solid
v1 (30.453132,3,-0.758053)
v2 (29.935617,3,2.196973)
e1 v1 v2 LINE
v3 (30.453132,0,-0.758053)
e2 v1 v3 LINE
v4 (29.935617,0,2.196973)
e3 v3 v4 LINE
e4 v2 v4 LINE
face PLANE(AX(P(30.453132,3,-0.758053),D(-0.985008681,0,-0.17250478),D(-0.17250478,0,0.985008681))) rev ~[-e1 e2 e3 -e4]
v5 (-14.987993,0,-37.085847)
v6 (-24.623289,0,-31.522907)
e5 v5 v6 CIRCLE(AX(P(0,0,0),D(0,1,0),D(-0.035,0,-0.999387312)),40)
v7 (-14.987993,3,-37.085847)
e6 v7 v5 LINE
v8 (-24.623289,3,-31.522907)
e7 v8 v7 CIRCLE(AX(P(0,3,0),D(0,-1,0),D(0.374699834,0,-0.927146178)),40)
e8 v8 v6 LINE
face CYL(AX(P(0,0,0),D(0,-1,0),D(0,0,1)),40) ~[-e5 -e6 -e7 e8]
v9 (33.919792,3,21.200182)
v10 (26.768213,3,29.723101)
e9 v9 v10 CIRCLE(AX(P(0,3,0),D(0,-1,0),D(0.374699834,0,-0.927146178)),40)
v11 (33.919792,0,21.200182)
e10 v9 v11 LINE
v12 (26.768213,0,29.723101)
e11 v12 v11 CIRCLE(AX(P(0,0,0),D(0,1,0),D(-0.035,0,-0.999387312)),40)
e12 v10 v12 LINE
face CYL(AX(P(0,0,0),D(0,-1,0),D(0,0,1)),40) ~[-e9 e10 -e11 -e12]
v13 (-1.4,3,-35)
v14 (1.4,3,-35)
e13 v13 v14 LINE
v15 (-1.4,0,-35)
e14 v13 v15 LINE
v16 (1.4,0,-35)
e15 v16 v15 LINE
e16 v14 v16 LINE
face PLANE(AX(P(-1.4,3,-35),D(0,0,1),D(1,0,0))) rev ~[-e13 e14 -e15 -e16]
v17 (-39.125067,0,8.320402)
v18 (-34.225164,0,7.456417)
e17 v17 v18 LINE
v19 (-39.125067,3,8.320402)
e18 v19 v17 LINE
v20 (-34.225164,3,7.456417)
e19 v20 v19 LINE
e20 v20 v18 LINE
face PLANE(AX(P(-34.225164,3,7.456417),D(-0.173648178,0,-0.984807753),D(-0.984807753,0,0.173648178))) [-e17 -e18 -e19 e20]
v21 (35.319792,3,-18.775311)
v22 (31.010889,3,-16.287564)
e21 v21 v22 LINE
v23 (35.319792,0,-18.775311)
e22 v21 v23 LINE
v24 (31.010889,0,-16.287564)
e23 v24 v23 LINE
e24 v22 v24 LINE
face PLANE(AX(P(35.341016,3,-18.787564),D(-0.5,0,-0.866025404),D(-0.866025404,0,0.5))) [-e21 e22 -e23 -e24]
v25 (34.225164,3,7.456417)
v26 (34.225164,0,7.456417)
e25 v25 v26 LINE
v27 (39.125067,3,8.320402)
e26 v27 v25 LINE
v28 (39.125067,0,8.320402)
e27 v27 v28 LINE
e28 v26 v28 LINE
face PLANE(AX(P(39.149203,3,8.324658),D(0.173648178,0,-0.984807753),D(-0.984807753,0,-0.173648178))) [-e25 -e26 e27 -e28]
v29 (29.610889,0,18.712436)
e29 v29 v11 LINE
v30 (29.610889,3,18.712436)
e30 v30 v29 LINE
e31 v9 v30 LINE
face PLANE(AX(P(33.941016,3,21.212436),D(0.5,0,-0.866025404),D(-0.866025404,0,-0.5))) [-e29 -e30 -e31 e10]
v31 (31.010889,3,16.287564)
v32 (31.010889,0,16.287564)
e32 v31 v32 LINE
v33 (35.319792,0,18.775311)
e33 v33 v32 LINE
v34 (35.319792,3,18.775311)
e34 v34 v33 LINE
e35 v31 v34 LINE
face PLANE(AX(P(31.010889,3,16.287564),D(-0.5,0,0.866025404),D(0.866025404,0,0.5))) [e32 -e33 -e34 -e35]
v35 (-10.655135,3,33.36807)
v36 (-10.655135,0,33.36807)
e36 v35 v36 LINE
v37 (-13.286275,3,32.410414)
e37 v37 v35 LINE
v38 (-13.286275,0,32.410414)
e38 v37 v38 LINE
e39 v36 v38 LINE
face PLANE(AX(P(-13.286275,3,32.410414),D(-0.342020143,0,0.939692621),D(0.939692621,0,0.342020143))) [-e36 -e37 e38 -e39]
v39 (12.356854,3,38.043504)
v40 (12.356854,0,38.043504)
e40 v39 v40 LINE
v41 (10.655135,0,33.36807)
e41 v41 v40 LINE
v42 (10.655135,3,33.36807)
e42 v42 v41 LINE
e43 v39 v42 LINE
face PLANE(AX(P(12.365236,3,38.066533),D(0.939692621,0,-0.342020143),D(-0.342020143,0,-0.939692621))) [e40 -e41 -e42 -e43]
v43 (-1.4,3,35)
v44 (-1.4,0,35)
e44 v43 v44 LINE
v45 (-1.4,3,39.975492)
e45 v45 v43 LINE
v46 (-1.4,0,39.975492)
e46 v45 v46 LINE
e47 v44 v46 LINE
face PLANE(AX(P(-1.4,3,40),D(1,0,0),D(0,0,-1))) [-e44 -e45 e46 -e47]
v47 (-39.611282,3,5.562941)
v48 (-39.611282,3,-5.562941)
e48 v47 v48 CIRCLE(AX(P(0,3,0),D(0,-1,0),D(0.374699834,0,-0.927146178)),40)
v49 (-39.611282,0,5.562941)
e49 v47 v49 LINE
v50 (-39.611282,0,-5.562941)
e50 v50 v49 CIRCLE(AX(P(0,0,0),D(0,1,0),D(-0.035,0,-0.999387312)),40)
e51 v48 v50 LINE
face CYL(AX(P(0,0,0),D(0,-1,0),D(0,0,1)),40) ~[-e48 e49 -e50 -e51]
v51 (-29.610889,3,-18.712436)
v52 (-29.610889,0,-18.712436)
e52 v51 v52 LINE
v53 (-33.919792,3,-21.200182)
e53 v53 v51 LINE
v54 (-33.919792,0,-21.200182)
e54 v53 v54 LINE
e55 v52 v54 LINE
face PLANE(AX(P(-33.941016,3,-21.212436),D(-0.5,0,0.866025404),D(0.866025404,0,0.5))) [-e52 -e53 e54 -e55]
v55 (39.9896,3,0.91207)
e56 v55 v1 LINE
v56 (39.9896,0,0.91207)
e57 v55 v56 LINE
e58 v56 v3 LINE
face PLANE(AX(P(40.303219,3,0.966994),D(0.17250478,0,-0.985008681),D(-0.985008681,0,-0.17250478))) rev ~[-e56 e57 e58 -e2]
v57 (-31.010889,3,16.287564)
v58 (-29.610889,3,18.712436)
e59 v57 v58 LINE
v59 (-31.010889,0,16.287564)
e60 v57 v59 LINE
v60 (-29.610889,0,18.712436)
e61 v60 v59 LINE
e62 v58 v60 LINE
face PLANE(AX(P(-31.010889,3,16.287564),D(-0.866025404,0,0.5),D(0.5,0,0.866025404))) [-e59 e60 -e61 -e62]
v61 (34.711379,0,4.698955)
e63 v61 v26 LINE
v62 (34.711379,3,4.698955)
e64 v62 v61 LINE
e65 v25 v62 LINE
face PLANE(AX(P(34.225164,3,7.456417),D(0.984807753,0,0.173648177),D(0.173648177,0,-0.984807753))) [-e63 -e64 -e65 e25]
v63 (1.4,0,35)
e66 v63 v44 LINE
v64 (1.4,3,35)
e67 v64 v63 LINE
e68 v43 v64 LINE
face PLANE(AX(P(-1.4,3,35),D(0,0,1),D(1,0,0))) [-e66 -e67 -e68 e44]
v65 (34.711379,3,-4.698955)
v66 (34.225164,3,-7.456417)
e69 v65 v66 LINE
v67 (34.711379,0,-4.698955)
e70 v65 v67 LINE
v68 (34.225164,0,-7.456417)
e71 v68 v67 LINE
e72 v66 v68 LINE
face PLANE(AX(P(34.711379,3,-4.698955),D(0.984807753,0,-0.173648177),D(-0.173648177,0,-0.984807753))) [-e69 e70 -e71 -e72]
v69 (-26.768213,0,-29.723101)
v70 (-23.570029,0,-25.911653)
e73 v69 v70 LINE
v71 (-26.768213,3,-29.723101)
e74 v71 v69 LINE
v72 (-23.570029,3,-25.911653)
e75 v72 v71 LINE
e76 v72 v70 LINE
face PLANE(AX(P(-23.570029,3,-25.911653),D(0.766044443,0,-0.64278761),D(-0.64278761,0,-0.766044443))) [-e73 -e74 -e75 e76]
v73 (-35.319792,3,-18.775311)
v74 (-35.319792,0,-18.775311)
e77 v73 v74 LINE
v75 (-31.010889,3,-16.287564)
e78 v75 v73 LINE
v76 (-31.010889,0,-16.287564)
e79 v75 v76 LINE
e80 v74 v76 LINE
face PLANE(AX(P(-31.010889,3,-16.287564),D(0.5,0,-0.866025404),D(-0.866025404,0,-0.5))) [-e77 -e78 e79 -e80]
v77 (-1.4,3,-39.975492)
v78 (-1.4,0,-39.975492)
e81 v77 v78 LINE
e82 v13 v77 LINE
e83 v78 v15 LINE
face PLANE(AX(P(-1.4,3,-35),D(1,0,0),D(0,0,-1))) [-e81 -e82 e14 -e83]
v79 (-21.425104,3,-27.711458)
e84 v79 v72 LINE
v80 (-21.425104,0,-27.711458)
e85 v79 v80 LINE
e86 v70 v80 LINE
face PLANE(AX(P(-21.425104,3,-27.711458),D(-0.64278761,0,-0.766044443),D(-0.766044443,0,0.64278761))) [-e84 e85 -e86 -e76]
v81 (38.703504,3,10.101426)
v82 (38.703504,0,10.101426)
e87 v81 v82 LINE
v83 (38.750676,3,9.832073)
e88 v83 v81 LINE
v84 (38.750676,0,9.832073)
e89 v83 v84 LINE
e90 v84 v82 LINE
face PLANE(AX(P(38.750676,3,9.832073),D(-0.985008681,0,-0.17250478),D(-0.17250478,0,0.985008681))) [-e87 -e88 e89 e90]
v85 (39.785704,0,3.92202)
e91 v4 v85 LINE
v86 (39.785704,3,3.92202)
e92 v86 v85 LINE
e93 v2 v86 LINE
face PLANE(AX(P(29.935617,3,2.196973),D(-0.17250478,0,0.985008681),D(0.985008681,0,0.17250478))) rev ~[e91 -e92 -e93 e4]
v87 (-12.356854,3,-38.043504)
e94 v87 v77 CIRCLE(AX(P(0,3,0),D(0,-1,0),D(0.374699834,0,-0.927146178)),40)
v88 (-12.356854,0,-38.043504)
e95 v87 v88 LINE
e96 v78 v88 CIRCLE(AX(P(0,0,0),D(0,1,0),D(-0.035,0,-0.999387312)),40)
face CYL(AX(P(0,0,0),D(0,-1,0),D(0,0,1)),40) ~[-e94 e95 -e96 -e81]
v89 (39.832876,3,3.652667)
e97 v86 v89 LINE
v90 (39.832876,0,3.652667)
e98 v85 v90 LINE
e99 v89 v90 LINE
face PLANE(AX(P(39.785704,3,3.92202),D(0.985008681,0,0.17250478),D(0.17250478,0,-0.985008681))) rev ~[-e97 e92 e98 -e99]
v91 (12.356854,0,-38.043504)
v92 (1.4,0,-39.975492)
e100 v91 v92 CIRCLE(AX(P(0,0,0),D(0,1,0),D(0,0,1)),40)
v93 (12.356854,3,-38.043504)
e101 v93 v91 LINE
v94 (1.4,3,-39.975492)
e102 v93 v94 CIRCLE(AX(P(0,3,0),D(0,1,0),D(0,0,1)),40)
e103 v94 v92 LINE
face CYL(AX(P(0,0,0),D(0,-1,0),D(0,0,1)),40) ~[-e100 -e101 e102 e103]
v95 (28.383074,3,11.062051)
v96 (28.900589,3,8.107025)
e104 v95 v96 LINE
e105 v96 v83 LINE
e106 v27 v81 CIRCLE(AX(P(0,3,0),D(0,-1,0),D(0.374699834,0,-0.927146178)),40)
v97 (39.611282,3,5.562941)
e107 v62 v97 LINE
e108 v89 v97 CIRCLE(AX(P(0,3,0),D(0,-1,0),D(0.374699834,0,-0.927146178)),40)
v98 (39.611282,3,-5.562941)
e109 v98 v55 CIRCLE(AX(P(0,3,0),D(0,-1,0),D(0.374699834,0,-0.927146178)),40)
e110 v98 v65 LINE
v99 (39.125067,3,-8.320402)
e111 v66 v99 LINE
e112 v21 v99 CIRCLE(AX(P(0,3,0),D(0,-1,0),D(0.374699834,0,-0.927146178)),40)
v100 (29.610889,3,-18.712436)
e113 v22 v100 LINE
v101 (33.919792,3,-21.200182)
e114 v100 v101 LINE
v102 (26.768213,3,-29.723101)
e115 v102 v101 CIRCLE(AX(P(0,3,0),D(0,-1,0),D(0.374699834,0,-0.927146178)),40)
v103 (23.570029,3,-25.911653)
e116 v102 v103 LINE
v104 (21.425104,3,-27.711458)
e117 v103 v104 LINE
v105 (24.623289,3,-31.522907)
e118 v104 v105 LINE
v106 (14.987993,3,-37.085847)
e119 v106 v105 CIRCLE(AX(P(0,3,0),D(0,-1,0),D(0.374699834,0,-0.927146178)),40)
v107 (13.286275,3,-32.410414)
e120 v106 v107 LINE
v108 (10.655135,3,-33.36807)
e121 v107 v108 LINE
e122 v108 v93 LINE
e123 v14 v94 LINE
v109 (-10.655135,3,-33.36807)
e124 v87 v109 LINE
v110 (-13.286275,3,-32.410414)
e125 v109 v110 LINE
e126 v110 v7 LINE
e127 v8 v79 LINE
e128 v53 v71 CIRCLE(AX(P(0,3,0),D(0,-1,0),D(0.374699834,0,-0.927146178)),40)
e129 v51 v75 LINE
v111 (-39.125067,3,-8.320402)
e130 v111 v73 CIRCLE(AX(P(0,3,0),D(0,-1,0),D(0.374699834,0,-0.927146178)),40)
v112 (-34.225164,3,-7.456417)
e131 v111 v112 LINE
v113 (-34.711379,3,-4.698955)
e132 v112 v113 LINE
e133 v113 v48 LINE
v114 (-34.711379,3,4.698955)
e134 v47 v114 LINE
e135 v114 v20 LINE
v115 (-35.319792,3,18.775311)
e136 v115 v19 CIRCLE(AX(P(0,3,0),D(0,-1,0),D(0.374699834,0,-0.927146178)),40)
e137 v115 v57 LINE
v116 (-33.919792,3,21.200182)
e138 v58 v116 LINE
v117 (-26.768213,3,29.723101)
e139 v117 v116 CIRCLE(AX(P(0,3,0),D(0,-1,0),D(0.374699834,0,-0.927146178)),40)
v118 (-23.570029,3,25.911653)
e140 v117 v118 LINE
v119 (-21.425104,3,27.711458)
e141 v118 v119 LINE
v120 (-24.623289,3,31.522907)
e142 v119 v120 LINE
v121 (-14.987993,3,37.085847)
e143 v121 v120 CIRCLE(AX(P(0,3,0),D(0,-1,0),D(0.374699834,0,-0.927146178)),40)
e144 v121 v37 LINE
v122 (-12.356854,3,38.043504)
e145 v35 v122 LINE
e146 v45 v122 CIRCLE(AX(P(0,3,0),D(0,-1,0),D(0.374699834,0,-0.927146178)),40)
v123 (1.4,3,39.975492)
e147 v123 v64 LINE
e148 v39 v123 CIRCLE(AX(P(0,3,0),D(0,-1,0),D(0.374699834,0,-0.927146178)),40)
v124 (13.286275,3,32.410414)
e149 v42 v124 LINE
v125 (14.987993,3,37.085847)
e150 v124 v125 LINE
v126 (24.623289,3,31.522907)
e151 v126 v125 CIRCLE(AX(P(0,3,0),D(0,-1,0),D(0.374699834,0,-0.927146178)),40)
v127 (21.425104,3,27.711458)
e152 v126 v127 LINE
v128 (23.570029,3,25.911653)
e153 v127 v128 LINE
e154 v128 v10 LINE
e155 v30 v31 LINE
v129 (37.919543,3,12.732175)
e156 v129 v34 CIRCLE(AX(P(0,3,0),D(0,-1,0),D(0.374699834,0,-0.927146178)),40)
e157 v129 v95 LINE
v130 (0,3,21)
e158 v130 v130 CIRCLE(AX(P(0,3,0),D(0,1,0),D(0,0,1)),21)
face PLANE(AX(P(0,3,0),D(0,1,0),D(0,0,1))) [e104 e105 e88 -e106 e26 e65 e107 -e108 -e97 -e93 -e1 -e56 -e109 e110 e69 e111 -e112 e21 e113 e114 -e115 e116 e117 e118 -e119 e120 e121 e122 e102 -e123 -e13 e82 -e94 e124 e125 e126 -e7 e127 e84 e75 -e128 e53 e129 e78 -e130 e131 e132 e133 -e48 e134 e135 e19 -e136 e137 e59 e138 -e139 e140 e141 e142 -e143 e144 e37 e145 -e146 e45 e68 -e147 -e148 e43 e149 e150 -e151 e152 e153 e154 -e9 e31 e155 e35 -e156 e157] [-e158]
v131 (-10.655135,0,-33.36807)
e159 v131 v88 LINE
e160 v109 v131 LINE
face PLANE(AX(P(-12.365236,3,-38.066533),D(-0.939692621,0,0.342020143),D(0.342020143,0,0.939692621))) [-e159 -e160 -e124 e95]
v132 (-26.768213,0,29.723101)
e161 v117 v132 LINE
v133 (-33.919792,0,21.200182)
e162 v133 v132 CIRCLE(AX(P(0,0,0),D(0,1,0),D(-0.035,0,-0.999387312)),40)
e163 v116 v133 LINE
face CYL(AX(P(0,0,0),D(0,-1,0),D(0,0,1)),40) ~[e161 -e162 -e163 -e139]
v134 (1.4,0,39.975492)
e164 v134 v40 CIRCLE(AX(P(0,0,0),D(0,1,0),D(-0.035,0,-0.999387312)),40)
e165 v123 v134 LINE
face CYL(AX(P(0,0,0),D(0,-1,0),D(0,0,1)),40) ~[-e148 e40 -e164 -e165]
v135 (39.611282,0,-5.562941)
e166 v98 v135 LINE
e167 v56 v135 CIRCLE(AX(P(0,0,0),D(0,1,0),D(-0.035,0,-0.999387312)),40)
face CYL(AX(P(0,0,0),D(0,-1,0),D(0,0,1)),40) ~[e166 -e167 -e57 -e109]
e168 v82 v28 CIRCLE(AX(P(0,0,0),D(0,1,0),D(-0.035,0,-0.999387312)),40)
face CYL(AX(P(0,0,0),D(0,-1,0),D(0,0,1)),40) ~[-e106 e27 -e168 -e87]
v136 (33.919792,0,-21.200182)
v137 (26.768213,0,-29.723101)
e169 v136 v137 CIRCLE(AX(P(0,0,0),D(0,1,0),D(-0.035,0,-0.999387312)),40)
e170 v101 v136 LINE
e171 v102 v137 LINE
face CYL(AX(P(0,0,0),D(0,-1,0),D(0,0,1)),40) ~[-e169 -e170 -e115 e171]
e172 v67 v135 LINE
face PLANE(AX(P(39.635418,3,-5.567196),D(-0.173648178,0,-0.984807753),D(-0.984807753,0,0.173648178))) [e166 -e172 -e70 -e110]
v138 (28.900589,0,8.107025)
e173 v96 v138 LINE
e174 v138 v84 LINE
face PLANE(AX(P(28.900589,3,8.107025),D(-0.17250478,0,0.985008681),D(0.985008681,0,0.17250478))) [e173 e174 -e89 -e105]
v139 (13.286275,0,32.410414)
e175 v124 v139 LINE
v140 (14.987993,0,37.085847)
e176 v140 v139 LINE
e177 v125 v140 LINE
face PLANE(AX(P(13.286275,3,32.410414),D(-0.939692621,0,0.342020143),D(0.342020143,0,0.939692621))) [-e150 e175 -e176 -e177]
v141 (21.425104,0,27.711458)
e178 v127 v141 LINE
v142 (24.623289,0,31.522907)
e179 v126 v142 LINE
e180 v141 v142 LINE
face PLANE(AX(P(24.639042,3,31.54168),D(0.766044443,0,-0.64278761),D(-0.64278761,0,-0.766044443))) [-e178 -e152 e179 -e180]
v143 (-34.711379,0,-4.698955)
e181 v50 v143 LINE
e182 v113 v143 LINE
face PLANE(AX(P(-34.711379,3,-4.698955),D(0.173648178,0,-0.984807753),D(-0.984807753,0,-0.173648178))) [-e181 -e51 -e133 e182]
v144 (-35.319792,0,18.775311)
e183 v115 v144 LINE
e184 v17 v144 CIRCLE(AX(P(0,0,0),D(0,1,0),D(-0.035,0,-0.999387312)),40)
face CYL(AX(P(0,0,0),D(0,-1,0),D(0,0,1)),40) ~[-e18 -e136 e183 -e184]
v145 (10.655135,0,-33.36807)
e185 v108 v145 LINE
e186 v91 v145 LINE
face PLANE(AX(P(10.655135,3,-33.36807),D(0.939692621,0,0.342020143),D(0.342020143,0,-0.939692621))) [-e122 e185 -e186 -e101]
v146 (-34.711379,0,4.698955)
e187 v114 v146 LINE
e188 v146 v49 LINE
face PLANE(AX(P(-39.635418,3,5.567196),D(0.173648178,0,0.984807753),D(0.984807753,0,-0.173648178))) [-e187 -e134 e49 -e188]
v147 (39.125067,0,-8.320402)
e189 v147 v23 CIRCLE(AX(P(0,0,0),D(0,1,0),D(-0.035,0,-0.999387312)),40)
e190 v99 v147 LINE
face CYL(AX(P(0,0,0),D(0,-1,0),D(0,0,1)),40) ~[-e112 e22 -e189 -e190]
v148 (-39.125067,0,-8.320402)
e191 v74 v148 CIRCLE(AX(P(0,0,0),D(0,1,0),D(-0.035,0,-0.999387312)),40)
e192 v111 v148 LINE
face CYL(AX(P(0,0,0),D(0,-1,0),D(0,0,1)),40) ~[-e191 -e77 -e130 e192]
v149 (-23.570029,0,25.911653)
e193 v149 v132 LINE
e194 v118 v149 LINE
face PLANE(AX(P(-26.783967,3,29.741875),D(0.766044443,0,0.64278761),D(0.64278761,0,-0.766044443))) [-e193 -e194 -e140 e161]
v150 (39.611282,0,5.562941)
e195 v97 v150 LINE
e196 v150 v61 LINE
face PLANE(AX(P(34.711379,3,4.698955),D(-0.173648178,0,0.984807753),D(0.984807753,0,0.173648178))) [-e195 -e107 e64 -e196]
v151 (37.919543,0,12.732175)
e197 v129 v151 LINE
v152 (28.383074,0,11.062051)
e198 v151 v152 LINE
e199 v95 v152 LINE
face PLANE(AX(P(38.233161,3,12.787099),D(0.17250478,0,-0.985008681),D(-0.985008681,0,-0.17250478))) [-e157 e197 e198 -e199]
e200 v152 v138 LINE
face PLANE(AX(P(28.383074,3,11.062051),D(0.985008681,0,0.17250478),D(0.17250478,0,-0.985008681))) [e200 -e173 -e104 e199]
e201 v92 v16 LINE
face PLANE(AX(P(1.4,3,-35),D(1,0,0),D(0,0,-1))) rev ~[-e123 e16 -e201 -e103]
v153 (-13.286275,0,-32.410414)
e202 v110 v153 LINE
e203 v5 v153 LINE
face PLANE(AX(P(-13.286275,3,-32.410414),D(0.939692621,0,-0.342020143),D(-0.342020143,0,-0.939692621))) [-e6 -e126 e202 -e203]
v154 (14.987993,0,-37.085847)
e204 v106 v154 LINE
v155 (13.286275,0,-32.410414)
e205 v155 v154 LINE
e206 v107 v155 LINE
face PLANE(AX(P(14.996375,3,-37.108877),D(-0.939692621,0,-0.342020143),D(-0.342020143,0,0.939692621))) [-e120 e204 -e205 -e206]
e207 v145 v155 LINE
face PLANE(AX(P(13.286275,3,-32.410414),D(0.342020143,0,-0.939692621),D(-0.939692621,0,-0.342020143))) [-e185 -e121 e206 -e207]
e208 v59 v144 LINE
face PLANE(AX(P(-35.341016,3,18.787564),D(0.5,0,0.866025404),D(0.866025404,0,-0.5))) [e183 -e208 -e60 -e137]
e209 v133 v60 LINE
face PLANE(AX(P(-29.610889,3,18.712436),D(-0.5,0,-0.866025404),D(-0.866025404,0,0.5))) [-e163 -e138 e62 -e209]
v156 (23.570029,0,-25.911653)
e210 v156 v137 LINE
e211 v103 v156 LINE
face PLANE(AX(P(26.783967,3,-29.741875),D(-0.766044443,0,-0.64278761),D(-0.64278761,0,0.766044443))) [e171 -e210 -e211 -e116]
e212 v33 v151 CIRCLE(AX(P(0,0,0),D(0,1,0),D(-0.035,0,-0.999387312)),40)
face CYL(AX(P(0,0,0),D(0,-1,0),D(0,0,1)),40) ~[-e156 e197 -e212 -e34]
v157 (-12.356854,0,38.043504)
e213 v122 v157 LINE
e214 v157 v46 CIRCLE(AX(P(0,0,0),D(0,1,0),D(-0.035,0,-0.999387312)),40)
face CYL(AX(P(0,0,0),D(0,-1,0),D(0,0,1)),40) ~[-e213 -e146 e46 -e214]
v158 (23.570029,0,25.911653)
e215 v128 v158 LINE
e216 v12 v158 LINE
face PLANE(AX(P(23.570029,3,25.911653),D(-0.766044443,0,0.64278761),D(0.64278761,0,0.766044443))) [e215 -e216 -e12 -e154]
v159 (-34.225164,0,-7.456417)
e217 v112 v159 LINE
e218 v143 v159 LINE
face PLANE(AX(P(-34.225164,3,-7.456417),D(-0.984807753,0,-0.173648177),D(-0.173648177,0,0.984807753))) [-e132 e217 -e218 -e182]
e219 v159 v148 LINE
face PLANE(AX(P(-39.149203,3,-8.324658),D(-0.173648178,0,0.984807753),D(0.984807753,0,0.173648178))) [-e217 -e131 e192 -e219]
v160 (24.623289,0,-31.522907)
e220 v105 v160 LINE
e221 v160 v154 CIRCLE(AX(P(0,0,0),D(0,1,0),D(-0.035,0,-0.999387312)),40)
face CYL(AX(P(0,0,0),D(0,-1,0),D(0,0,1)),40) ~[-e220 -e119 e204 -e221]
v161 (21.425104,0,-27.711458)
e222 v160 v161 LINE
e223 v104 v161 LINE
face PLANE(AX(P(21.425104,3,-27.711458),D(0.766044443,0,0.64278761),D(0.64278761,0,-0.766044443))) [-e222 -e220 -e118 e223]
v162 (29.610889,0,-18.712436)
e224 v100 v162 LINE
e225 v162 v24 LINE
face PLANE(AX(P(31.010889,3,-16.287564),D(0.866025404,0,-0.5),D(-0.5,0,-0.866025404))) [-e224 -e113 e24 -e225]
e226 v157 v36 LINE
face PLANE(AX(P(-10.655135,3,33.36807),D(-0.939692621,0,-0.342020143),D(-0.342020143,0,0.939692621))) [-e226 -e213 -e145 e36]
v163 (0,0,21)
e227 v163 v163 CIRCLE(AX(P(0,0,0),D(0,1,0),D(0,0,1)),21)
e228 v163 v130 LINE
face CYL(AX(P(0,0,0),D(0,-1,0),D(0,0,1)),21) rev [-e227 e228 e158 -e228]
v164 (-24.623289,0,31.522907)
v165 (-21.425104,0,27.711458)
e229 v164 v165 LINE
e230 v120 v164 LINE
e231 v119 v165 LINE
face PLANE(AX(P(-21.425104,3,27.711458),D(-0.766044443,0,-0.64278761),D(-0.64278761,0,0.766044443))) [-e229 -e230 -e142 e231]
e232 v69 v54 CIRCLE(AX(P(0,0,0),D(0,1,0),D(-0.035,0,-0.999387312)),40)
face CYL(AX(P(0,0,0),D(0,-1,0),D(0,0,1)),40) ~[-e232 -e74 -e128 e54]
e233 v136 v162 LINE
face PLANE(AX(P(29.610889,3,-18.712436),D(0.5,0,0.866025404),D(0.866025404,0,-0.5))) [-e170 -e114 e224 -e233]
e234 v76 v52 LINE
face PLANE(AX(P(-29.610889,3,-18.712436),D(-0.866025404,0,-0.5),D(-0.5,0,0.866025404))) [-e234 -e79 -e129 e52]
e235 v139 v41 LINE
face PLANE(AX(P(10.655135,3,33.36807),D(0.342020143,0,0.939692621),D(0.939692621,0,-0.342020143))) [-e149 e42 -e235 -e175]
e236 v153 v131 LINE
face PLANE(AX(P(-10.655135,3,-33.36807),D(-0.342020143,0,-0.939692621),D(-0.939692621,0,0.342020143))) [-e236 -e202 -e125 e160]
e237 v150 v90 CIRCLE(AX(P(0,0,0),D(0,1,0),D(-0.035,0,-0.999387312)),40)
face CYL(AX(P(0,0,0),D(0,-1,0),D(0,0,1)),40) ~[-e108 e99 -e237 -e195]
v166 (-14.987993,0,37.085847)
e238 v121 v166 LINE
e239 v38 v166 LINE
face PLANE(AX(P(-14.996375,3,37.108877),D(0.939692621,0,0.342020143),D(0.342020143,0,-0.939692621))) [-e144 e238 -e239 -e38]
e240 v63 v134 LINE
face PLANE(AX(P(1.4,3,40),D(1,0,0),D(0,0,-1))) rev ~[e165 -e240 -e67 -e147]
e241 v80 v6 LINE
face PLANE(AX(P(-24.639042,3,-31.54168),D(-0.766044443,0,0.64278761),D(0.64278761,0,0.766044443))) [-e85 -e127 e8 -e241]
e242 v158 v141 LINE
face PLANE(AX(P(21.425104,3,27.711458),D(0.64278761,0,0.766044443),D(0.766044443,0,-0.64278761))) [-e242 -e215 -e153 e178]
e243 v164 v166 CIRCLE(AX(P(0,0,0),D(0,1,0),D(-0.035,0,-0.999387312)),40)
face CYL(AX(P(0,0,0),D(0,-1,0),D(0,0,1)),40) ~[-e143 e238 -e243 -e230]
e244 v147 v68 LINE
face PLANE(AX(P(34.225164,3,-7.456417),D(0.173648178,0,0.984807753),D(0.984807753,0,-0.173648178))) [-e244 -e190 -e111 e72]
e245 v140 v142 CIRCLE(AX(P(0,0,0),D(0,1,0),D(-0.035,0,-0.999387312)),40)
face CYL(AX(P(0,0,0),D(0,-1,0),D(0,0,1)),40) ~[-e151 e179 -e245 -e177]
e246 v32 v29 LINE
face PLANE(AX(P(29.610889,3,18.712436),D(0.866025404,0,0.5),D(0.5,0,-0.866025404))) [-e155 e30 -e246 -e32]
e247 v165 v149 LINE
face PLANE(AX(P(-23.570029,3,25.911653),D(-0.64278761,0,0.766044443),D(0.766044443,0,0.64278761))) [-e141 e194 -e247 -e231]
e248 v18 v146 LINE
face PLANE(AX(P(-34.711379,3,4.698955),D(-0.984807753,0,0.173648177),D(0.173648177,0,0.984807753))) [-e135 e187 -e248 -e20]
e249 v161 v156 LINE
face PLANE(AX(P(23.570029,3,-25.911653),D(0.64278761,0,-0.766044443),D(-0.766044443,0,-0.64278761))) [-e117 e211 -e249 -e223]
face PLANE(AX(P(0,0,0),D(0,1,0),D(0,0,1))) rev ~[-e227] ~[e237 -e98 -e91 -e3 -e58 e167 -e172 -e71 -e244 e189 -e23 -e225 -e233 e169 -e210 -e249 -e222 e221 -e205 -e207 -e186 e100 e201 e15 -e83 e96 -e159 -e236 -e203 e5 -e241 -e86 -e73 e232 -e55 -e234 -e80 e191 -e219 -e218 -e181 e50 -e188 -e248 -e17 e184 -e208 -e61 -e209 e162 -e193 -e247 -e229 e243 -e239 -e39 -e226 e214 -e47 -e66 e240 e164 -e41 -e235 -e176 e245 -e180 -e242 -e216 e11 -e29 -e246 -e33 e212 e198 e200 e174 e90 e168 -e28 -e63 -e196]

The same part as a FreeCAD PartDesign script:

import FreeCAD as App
import Part
import Sketcher
Q = App.Units.Quantity


def add_polygon(sketch, points):
    """Adds a closed chain of lines whose ends are joined by coincident constraints."""
    first, n = sketch.GeometryCount, len(points)
    for a, b in zip(points, points[1:] + points[:1]):
        sketch.addGeometry(Part.LineSegment(App.Vector(*a, 0), App.Vector(*b, 0)), False)
    for i in range(n):
        sketch.addConstraint(Sketcher.Constraint("Coincident", first + i, 2, first + (i + 1) % n, 1))

doc = App.newDocument("Part")
body = doc.addObject("PartDesign::Body", "Body")

sketch1 = doc.addObject("Sketcher::SketchObject", "Sketch")
body.addObject(sketch1)
sketch1.AttachmentSupport = (doc.XZ_Plane, [""])
sketch1.MapMode = "FlatFace"
sketch1.addGeometry(Part.Circle(App.Vector(0, 0, 0), App.Vector(0, 0, 1), 40), False)
sketch1.addGeometry(Part.Circle(App.Vector(0, 0, 0), App.Vector(0, 0, 1), 21), False)
sketch1.addConstraint(Sketcher.Constraint("Coincident", 0, 3, -1, 1))
sketch1.addConstraint(Sketcher.Constraint("Coincident", 1, 3, -1, 1))
sketch1.addConstraint(Sketcher.Constraint("Diameter", 0, 80.0))
sketch1.addConstraint(Sketcher.Constraint("Diameter", 1, 42.0))
pad1 = doc.addObject("PartDesign::Pad", "Pad")
body.addObject(pad1)
pad1.Profile = sketch1
pad1.Length = 3
pad1.Reversed = True

sketch2 = doc.addObject("Sketcher::SketchObject", "Sketch001")
body.addObject(sketch2)
sketch2.AttachmentSupport = (doc.XZ_Plane, [""])
sketch2.MapMode = "FlatFace"
sketch2.AttachmentOffset = App.Placement(App.Vector(0, 0, -3), App.Rotation())
add_polygon(sketch2, [(13.3, -32.4), (15, -37.1), (12.4, -38.1), (10.7, -33.4)])
sketch2.addConstraint(Sketcher.Constraint("Perpendicular", 0, 1))
sketch2.addConstraint(Sketcher.Constraint("Perpendicular", 1, 2))
sketch2.addConstraint(Sketcher.Constraint("Perpendicular", 2, 3))
sketch2.addConstraint(Sketcher.Constraint("Angle", 0, Q("-70 deg")))
sketch2.addConstraint(Sketcher.Constraint("Distance", 0, 5.0))
sketch2.addConstraint(Sketcher.Constraint("Distance", 1, 2.8))
sketch2.addConstraint(Sketcher.Constraint("DistanceY", 2, 2, -1, 1, 33.36807))
sketch2.addConstraint(Sketcher.Constraint("DistanceX", -1, 1, 0, 2, 14.996375))
pocket1 = doc.addObject("PartDesign::Pocket", "Pocket")
body.addObject(pocket1)
pocket1.Profile = sketch2
pocket1.Type = "UpToFirst"
pocket1.Reversed = True

sketch3 = doc.addObject("Sketcher::SketchObject", "Sketch002")
body.addObject(sketch3)
sketch3.AttachmentSupport = (doc.XZ_Plane, [""])
sketch3.MapMode = "FlatFace"
sketch3.AttachmentOffset = App.Placement(App.Vector(0, 0, -3), App.Rotation())
add_polygon(sketch3, [(-1.4, -40), (-1.4, -35), (1.4, -35), (1.4, -40)])
sketch3.addConstraint(Sketcher.Constraint("Vertical", 0))
sketch3.addConstraint(Sketcher.Constraint("Horizontal", 1))
sketch3.addConstraint(Sketcher.Constraint("Vertical", 2))
sketch3.addConstraint(Sketcher.Constraint("Horizontal", 3))
sketch3.addConstraint(Sketcher.Constraint("DistanceY", 0, 1, 0, 2, 5.0))
sketch3.addConstraint(Sketcher.Constraint("DistanceX", 1, 1, 1, 2, 2.8))
sketch3.addConstraint(Sketcher.Constraint("DistanceY", 0, 2, -1, 1, 35.0))
sketch3.addConstraint(Sketcher.Constraint("DistanceX", 0, 2, -1, 1, 1.4))
pocket2 = doc.addObject("PartDesign::Pocket", "Pocket001")
body.addObject(pocket2)
pocket2.Profile = sketch3
pocket2.Type = "UpToFirst"
pocket2.Reversed = True

sketch4 = doc.addObject("Sketcher::SketchObject", "Sketch003")
body.addObject(sketch4)
sketch4.AttachmentSupport = (doc.XZ_Plane, [""])
sketch4.MapMode = "FlatFace"
sketch4.AttachmentOffset = App.Placement(App.Vector(0, 0, -3), App.Rotation())
add_polygon(sketch4, [(23.6, -25.9), (26.8, -29.7), (24.6, -31.5), (21.4, -27.7)])
sketch4.addConstraint(Sketcher.Constraint("Perpendicular", 0, 1))
sketch4.addConstraint(Sketcher.Constraint("Perpendicular", 1, 2))
sketch4.addConstraint(Sketcher.Constraint("Perpendicular", 2, 3))
sketch4.addConstraint(Sketcher.Constraint("Angle", 0, Q("-50 deg")))
sketch4.addConstraint(Sketcher.Constraint("Distance", 0, 5.0))
sketch4.addConstraint(Sketcher.Constraint("Distance", 1, 2.8))
sketch4.addConstraint(Sketcher.Constraint("DistanceY", 1, 2, -1, 1, 31.54168))
sketch4.addConstraint(Sketcher.Constraint("DistanceX", -1, 1, 3, 2, 23.570029))
pocket3 = doc.addObject("PartDesign::Pocket", "Pocket002")
body.addObject(pocket3)
pocket3.Profile = sketch4
pocket3.Type = "UpToFirst"
pocket3.Reversed = True

sketch5 = doc.addObject("Sketcher::SketchObject", "Sketch004")
body.addObject(sketch5)
sketch5.AttachmentSupport = (doc.XZ_Plane, [""])
sketch5.MapMode = "FlatFace"
sketch5.AttachmentOffset = App.Placement(App.Vector(0, 0, -3), App.Rotation())
add_polygon(sketch5, [(31, -16.3), (35.3, -18.8), (33.9, -21.2), (29.6, -18.7)])
sketch5.addConstraint(Sketcher.Constraint("Perpendicular", 0, 1))
sketch5.addConstraint(Sketcher.Constraint("Perpendicular", 1, 2))
sketch5.addConstraint(Sketcher.Constraint("Perpendicular", 2, 3))
sketch5.addConstraint(Sketcher.Constraint("Angle", 0, Q("-30 deg")))
sketch5.addConstraint(Sketcher.Constraint("Distance", 0, 5.0))
sketch5.addConstraint(Sketcher.Constraint("Distance", 1, 2.8))
sketch5.addConstraint(Sketcher.Constraint("DistanceX", -1, 1, 2, 2, 29.610889))
sketch5.addConstraint(Sketcher.Constraint("DistanceY", 0, 2, -1, 1, 18.787564))
pocket4 = doc.addObject("PartDesign::Pocket", "Pocket003")
body.addObject(pocket4)
pocket4.Profile = sketch5
pocket4.Type = "UpToFirst"
pocket4.Reversed = True

sketch6 = doc.addObject("Sketcher::SketchObject", "Sketch005")
body.addObject(sketch6)
sketch6.AttachmentSupport = (doc.XZ_Plane, [""])
sketch6.MapMode = "FlatFace"
sketch6.AttachmentOffset = App.Placement(App.Vector(0, 0, -3), App.Rotation())
add_polygon(sketch6, [(34.7, -4.7), (39.6, -5.6), (39.1, -8.3), (34.2, -7.5)])
sketch6.addConstraint(Sketcher.Constraint("Perpendicular", 0, 1))
sketch6.addConstraint(Sketcher.Constraint("Perpendicular", 1, 2))
sketch6.addConstraint(Sketcher.Constraint("Perpendicular", 2, 3))
sketch6.addConstraint(Sketcher.Constraint("Angle", 0, Q("-10 deg")))
sketch6.addConstraint(Sketcher.Constraint("Distance", 0, 5.0))
sketch6.addConstraint(Sketcher.Constraint("Distance", 1, 2.8))
sketch6.addConstraint(Sketcher.Constraint("DistanceX", -1, 1, 3, 2, 34.711379))
sketch6.addConstraint(Sketcher.Constraint("DistanceY", 0, 2, -1, 1, 5.567196))
pocket5 = doc.addObject("PartDesign::Pocket", "Pocket004")
body.addObject(pocket5)
pocket5.Profile = sketch6
pocket5.Type = "UpToFirst"
pocket5.Reversed = True

sketch7 = doc.addObject("Sketcher::SketchObject", "Sketch006")
body.addObject(sketch7)
sketch7.AttachmentSupport = (doc.XZ_Plane, [""])
sketch7.MapMode = "FlatFace"
sketch7.AttachmentOffset = App.Placement(App.Vector(0, 0, -3), App.Rotation())
add_polygon(sketch7, [(34.2, 7.5), (39.1, 8.3), (39.6, 5.6), (34.7, 4.7)])
sketch7.addConstraint(Sketcher.Constraint("Perpendicular", 0, 1))
sketch7.addConstraint(Sketcher.Constraint("Perpendicular", 1, 2))
sketch7.addConstraint(Sketcher.Constraint("Perpendicular", 2, 3))
sketch7.addConstraint(Sketcher.Constraint("Angle", 0, Q("10 deg")))
sketch7.addConstraint(Sketcher.Constraint("Distance", 0, 5.0))
sketch7.addConstraint(Sketcher.Constraint("Distance", 1, 2.8))
sketch7.addConstraint(Sketcher.Constraint("DistanceX", -1, 1, 2, 2, 34.711379))
sketch7.addConstraint(Sketcher.Constraint("DistanceY", -1, 1, 0, 2, 8.324658))
pocket6 = doc.addObject("PartDesign::Pocket", "Pocket005")
body.addObject(pocket6)
pocket6.Profile = sketch7
pocket6.Type = "UpToFirst"
pocket6.Reversed = True

sketch8 = doc.addObject("Sketcher::SketchObject", "Sketch007")
body.addObject(sketch8)
sketch8.AttachmentSupport = (doc.XZ_Plane, [""])
sketch8.MapMode = "FlatFace"
sketch8.AttachmentOffset = App.Placement(App.Vector(0, 0, -3), App.Rotation())
add_polygon(sketch8, [(29.6, 18.7), (33.9, 21.2), (35.3, 18.8), (31, 16.3)])
sketch8.addConstraint(Sketcher.Constraint("Perpendicular", 0, 1))
sketch8.addConstraint(Sketcher.Constraint("Perpendicular", 1, 2))
sketch8.addConstraint(Sketcher.Constraint("Perpendicular", 2, 3))
sketch8.addConstraint(Sketcher.Constraint("Angle", 0, Q("30 deg")))
sketch8.addConstraint(Sketcher.Constraint("Distance", 0, 5.0))
sketch8.addConstraint(Sketcher.Constraint("Distance", 1, 2.8))
sketch8.addConstraint(Sketcher.Constraint("DistanceX", -1, 1, 2, 2, 31.010889))
sketch8.addConstraint(Sketcher.Constraint("DistanceY", -1, 1, 0, 2, 21.212436))
pocket7 = doc.addObject("PartDesign::Pocket", "Pocket006")
body.addObject(pocket7)
pocket7.Profile = sketch8
pocket7.Type = "UpToFirst"
pocket7.Reversed = True

sketch9 = doc.addObject("Sketcher::SketchObject", "Sketch008")
body.addObject(sketch9)
sketch9.AttachmentSupport = (doc.XZ_Plane, [""])
sketch9.MapMode = "FlatFace"
sketch9.AttachmentOffset = App.Placement(App.Vector(0, 0, -3), App.Rotation())
add_polygon(sketch9, [(21.4, 27.7), (24.6, 31.5), (26.8, 29.7), (23.6, 25.9)])
sketch9.addConstraint(Sketcher.Constraint("Perpendicular", 0, 1))
sketch9.addConstraint(Sketcher.Constraint("Perpendicular", 1, 2))
sketch9.addConstraint(Sketcher.Constraint("Perpendicular", 2, 3))
sketch9.addConstraint(Sketcher.Constraint("Angle", 0, Q("50 deg")))
sketch9.addConstraint(Sketcher.Constraint("Distance", 0, 5.0))
sketch9.addConstraint(Sketcher.Constraint("Distance", 1, 2.8))
sketch9.addConstraint(Sketcher.Constraint("DistanceY", -1, 1, 0, 2, 31.54168))
sketch9.addConstraint(Sketcher.Constraint("DistanceX", -1, 1, 2, 2, 23.570029))
pocket8 = doc.addObject("PartDesign::Pocket", "Pocket007")
body.addObject(pocket8)
pocket8.Profile = sketch9
pocket8.Type = "UpToFirst"
pocket8.Reversed = True

sketch10 = doc.addObject("Sketcher::SketchObject", "Sketch009")
body.addObject(sketch10)
sketch10.AttachmentSupport = (doc.XZ_Plane, [""])
sketch10.MapMode = "FlatFace"
sketch10.AttachmentOffset = App.Placement(App.Vector(0, 0, -3), App.Rotation())
add_polygon(sketch10, [(10.7, 33.4), (12.4, 38.1), (15, 37.1), (13.3, 32.4)])
sketch10.addConstraint(Sketcher.Constraint("Perpendicular", 0, 1))
sketch10.addConstraint(Sketcher.Constraint("Perpendicular", 1, 2))
sketch10.addConstraint(Sketcher.Constraint("Perpendicular", 2, 3))
sketch10.addConstraint(Sketcher.Constraint("Angle", 0, Q("70 deg")))
sketch10.addConstraint(Sketcher.Constraint("Distance", 0, 5.0))
sketch10.addConstraint(Sketcher.Constraint("Distance", 1, 2.8))
sketch10.addConstraint(Sketcher.Constraint("DistanceY", -1, 1, 3, 2, 33.36807))
sketch10.addConstraint(Sketcher.Constraint("DistanceX", -1, 1, 0, 2, 12.365236))
pocket9 = doc.addObject("PartDesign::Pocket", "Pocket008")
body.addObject(pocket9)
pocket9.Profile = sketch10
pocket9.Type = "UpToFirst"
pocket9.Reversed = True

sketch11 = doc.addObject("Sketcher::SketchObject", "Sketch010")
body.addObject(sketch11)
sketch11.AttachmentSupport = (doc.XZ_Plane, [""])
sketch11.MapMode = "FlatFace"
sketch11.AttachmentOffset = App.Placement(App.Vector(0, 0, -3), App.Rotation())
add_polygon(sketch11, [(-1.4, 35), (-1.4, 40), (1.4, 40), (1.4, 35)])
sketch11.addConstraint(Sketcher.Constraint("Vertical", 0))
sketch11.addConstraint(Sketcher.Constraint("Horizontal", 1))
sketch11.addConstraint(Sketcher.Constraint("Vertical", 2))
sketch11.addConstraint(Sketcher.Constraint("Horizontal", 3))
sketch11.addConstraint(Sketcher.Constraint("DistanceY", 0, 1, 0, 2, 5.0))
sketch11.addConstraint(Sketcher.Constraint("DistanceX", 1, 1, 1, 2, 2.8))
sketch11.addConstraint(Sketcher.Constraint("DistanceY", -1, 1, 0, 2, 40.0))
sketch11.addConstraint(Sketcher.Constraint("DistanceX", 0, 2, -1, 1, 1.4))
pocket10 = doc.addObject("PartDesign::Pocket", "Pocket009")
body.addObject(pocket10)
pocket10.Profile = sketch11
pocket10.Type = "UpToFirst"
pocket10.Reversed = True

sketch12 = doc.addObject("Sketcher::SketchObject", "Sketch011")
body.addObject(sketch12)
sketch12.AttachmentSupport = (doc.XZ_Plane, [""])
sketch12.MapMode = "FlatFace"
sketch12.AttachmentOffset = App.Placement(App.Vector(0, 0, -3), App.Rotation())
add_polygon(sketch12, [(-13.3, 32.4), (-15, 37.1), (-12.4, 38.1), (-10.7, 33.4)])
sketch12.addConstraint(Sketcher.Constraint("Perpendicular", 0, 1))
sketch12.addConstraint(Sketcher.Constraint("Perpendicular", 1, 2))
sketch12.addConstraint(Sketcher.Constraint("Perpendicular", 2, 3))
sketch12.addConstraint(Sketcher.Constraint("Angle", 0, Q("110 deg")))
sketch12.addConstraint(Sketcher.Constraint("Distance", 0, 5.0))
sketch12.addConstraint(Sketcher.Constraint("Distance", 1, 2.8))
sketch12.addConstraint(Sketcher.Constraint("DistanceY", -1, 1, 2, 2, 33.36807))
sketch12.addConstraint(Sketcher.Constraint("DistanceX", 0, 2, -1, 1, 14.996375))
pocket11 = doc.addObject("PartDesign::Pocket", "Pocket010")
body.addObject(pocket11)
pocket11.Profile = sketch12
pocket11.Type = "UpToFirst"
pocket11.Reversed = True

sketch13 = doc.addObject("Sketcher::SketchObject", "Sketch012")
body.addObject(sketch13)
sketch13.AttachmentSupport = (doc.XZ_Plane, [""])
sketch13.MapMode = "FlatFace"
sketch13.AttachmentOffset = App.Placement(App.Vector(0, 0, -3), App.Rotation())
add_polygon(sketch13, [(-23.6, 25.9), (-26.8, 29.7), (-24.6, 31.5), (-21.4, 27.7)])
sketch13.addConstraint(Sketcher.Constraint("Perpendicular", 0, 1))
sketch13.addConstraint(Sketcher.Constraint("Perpendicular", 1, 2))
sketch13.addConstraint(Sketcher.Constraint("Perpendicular", 2, 3))
sketch13.addConstraint(Sketcher.Constraint("Angle", 0, Q("130 deg")))
sketch13.addConstraint(Sketcher.Constraint("Distance", 0, 5.0))
sketch13.addConstraint(Sketcher.Constraint("Distance", 1, 2.8))
sketch13.addConstraint(Sketcher.Constraint("DistanceY", -1, 1, 1, 2, 31.54168))
sketch13.addConstraint(Sketcher.Constraint("DistanceX", 3, 2, -1, 1, 23.570029))
pocket12 = doc.addObject("PartDesign::Pocket", "Pocket011")
body.addObject(pocket12)
pocket12.Profile = sketch13
pocket12.Type = "UpToFirst"
pocket12.Reversed = True

sketch14 = doc.addObject("Sketcher::SketchObject", "Sketch013")
body.addObject(sketch14)
sketch14.AttachmentSupport = (doc.XZ_Plane, [""])
sketch14.MapMode = "FlatFace"
sketch14.AttachmentOffset = App.Placement(App.Vector(0, 0, -3), App.Rotation())
add_polygon(sketch14, [(-31, 16.3), (-35.3, 18.8), (-33.9, 21.2), (-29.6, 18.7)])
sketch14.addConstraint(Sketcher.Constraint("Perpendicular", 0, 1))
sketch14.addConstraint(Sketcher.Constraint("Perpendicular", 1, 2))
sketch14.addConstraint(Sketcher.Constraint("Perpendicular", 2, 3))
sketch14.addConstraint(Sketcher.Constraint("Angle", 0, Q("150 deg")))
sketch14.addConstraint(Sketcher.Constraint("Distance", 0, 5.0))
sketch14.addConstraint(Sketcher.Constraint("Distance", 1, 2.8))
sketch14.addConstraint(Sketcher.Constraint("DistanceX", 2, 2, -1, 1, 29.610889))
sketch14.addConstraint(Sketcher.Constraint("DistanceY", -1, 1, 0, 2, 18.787564))
pocket13 = doc.addObject("PartDesign::Pocket", "Pocket012")
body.addObject(pocket13)
pocket13.Profile = sketch14
pocket13.Type = "UpToFirst"
pocket13.Reversed = True

sketch15 = doc.addObject("Sketcher::SketchObject", "Sketch014")
body.addObject(sketch15)
sketch15.AttachmentSupport = (doc.XZ_Plane, [""])
sketch15.MapMode = "FlatFace"
sketch15.AttachmentOffset = App.Placement(App.Vector(0, 0, -3), App.Rotation())
add_polygon(sketch15, [(-34.7, 4.7), (-39.6, 5.6), (-39.1, 8.3), (-34.2, 7.5)])
sketch15.addConstraint(Sketcher.Constraint("Perpendicular", 0, 1))
sketch15.addConstraint(Sketcher.Constraint("Perpendicular", 1, 2))
sketch15.addConstraint(Sketcher.Constraint("Perpendicular", 2, 3))
sketch15.addConstraint(Sketcher.Constraint("Angle", 0, Q("170 deg")))
sketch15.addConstraint(Sketcher.Constraint("Distance", 0, 5.0))
sketch15.addConstraint(Sketcher.Constraint("Distance", 1, 2.8))
sketch15.addConstraint(Sketcher.Constraint("DistanceX", 3, 2, -1, 1, 34.711379))
sketch15.addConstraint(Sketcher.Constraint("DistanceY", -1, 1, 0, 2, 5.567196))
pocket14 = doc.addObject("PartDesign::Pocket", "Pocket013")
body.addObject(pocket14)
pocket14.Profile = sketch15
pocket14.Type = "UpToFirst"
pocket14.Reversed = True

sketch16 = doc.addObject("Sketcher::SketchObject", "Sketch015")
body.addObject(sketch16)
sketch16.AttachmentSupport = (doc.XZ_Plane, [""])
sketch16.MapMode = "FlatFace"
sketch16.AttachmentOffset = App.Placement(App.Vector(0, 0, -3), App.Rotation())
add_polygon(sketch16, [(-34.2, -7.5), (-39.1, -8.3), (-39.6, -5.6), (-34.7, -4.7)])
sketch16.addConstraint(Sketcher.Constraint("Perpendicular", 0, 1))
sketch16.addConstraint(Sketcher.Constraint("Perpendicular", 1, 2))
sketch16.addConstraint(Sketcher.Constraint("Perpendicular", 2, 3))
sketch16.addConstraint(Sketcher.Constraint("Angle", 0, Q("-170 deg")))
sketch16.addConstraint(Sketcher.Constraint("Distance", 0, 5.0))
sketch16.addConstraint(Sketcher.Constraint("Distance", 1, 2.8))
sketch16.addConstraint(Sketcher.Constraint("DistanceX", 2, 2, -1, 1, 34.711379))
sketch16.addConstraint(Sketcher.Constraint("DistanceY", 0, 2, -1, 1, 8.324658))
pocket15 = doc.addObject("PartDesign::Pocket", "Pocket014")
body.addObject(pocket15)
pocket15.Profile = sketch16
pocket15.Type = "UpToFirst"
pocket15.Reversed = True

sketch17 = doc.addObject("Sketcher::SketchObject", "Sketch016")
body.addObject(sketch17)
sketch17.AttachmentSupport = (doc.XZ_Plane, [""])
sketch17.MapMode = "FlatFace"
sketch17.AttachmentOffset = App.Placement(App.Vector(0, 0, -3), App.Rotation())
add_polygon(sketch17, [(-29.6, -18.7), (-33.9, -21.2), (-35.3, -18.8), (-31, -16.3)])
sketch17.addConstraint(Sketcher.Constraint("Perpendicular", 0, 1))
sketch17.addConstraint(Sketcher.Constraint("Perpendicular", 1, 2))
sketch17.addConstraint(Sketcher.Constraint("Perpendicular", 2, 3))
sketch17.addConstraint(Sketcher.Constraint("Angle", 0, Q("-150 deg")))
sketch17.addConstraint(Sketcher.Constraint("Distance", 0, 5.0))
sketch17.addConstraint(Sketcher.Constraint("Distance", 1, 2.8))
sketch17.addConstraint(Sketcher.Constraint("DistanceX", 2, 2, -1, 1, 31.010889))
sketch17.addConstraint(Sketcher.Constraint("DistanceY", 0, 2, -1, 1, 21.212436))
pocket16 = doc.addObject("PartDesign::Pocket", "Pocket015")
body.addObject(pocket16)
pocket16.Profile = sketch17
pocket16.Type = "UpToFirst"
pocket16.Reversed = True

sketch18 = doc.addObject("Sketcher::SketchObject", "Sketch017")
body.addObject(sketch18)
sketch18.AttachmentSupport = (doc.XZ_Plane, [""])
sketch18.MapMode = "FlatFace"
sketch18.AttachmentOffset = App.Placement(App.Vector(0, 0, -3), App.Rotation())
add_polygon(sketch18, [(-21.4, -27.7), (-24.6, -31.5), (-26.8, -29.7), (-23.6, -25.9)])
sketch18.addConstraint(Sketcher.Constraint("Perpendicular", 0, 1))
sketch18.addConstraint(Sketcher.Constraint("Perpendicular", 1, 2))
sketch18.addConstraint(Sketcher.Constraint("Perpendicular", 2, 3))
sketch18.addConstraint(Sketcher.Constraint("Angle", 0, Q("-130 deg")))
sketch18.addConstraint(Sketcher.Constraint("Distance", 0, 5.0))
sketch18.addConstraint(Sketcher.Constraint("Distance", 1, 2.8))
sketch18.addConstraint(Sketcher.Constraint("DistanceY", 0, 2, -1, 1, 31.54168))
sketch18.addConstraint(Sketcher.Constraint("DistanceX", 2, 2, -1, 1, 23.570029))
pocket17 = doc.addObject("PartDesign::Pocket", "Pocket016")
body.addObject(pocket17)
pocket17.Profile = sketch18
pocket17.Type = "UpToFirst"
pocket17.Reversed = True

sketch19 = doc.addObject("Sketcher::SketchObject", "Sketch018")
body.addObject(sketch19)
sketch19.AttachmentSupport = (doc.XZ_Plane, [""])
sketch19.MapMode = "FlatFace"
sketch19.AttachmentOffset = App.Placement(App.Vector(0, 0, -3), App.Rotation())
add_polygon(sketch19, [(-10.7, -33.4), (-12.4, -38.1), (-15, -37.1), (-13.3, -32.4)])
sketch19.addConstraint(Sketcher.Constraint("Perpendicular", 0, 1))
sketch19.addConstraint(Sketcher.Constraint("Perpendicular", 1, 2))
sketch19.addConstraint(Sketcher.Constraint("Perpendicular", 2, 3))
sketch19.addConstraint(Sketcher.Constraint("Angle", 0, Q("-110 deg")))
sketch19.addConstraint(Sketcher.Constraint("Distance", 0, 5.0))
sketch19.addConstraint(Sketcher.Constraint("Distance", 1, 2.8))
sketch19.addConstraint(Sketcher.Constraint("DistanceY", 3, 2, -1, 1, 33.36807))
sketch19.addConstraint(Sketcher.Constraint("DistanceX", 0, 2, -1, 1, 12.365236))
pocket18 = doc.addObject("PartDesign::Pocket", "Pocket017")
body.addObject(pocket18)
pocket18.Profile = sketch19
pocket18.Type = "UpToFirst"
pocket18.Reversed = True

sketch20 = doc.addObject("Sketcher::SketchObject", "Sketch019")
body.addObject(sketch20)
sketch20.AttachmentSupport = (doc.XZ_Plane, [""])
sketch20.MapMode = "FlatFace"
sketch20.AttachmentOffset = App.Placement(App.Vector(0, 0, -3), App.Rotation())
add_polygon(sketch20, [(30.5, -0.8), (29.9, 2.2), (39.8, 3.9), (40.3, 1)])
add_polygon(sketch20, [(28.9, 8.1), (28.4, 11.1), (38.2, 12.8), (38.8, 9.8)])
sketch20.addConstraint(Sketcher.Constraint("Perpendicular", 0, 1))
sketch20.addConstraint(Sketcher.Constraint("Perpendicular", 1, 2))
sketch20.addConstraint(Sketcher.Constraint("Perpendicular", 2, 3))
sketch20.addConstraint(Sketcher.Constraint("Perpendicular", 3, 4))
sketch20.addConstraint(Sketcher.Constraint("Perpendicular", 4, 5))
sketch20.addConstraint(Sketcher.Constraint("Perpendicular", 5, 6))
sketch20.addConstraint(Sketcher.Constraint("Perpendicular", 6, 7))
sketch20.addConstraint(Sketcher.Constraint("Equal", 2, 4))
sketch20.addConstraint(Sketcher.Constraint("Equal", 3, 5))
sketch20.addConstraint(Sketcher.Constraint("Distance", 0, 3.0))
sketch20.addConstraint(Sketcher.Constraint("Distance", 1, 10.0))
sketch20.addConstraint(Sketcher.Constraint("DistanceY", -1, 1, 5, 2, 12.787099))
sketch20.addConstraint(Sketcher.Constraint("DistanceX", 0, 2, 2, 2, 10.367601))
sketch20.addConstraint(Sketcher.Constraint("DistanceY", 0, 2, 6, 2, 7.6351))
sketch20.addConstraint(Sketcher.Constraint("DistanceX", -1, 1, 2, 2, 40.303219))
sketch20.addConstraint(Sketcher.Constraint("DistanceX", -1, 1, 5, 2, 38.233161))
pocket19 = doc.addObject("PartDesign::Pocket", "Pocket018")
body.addObject(pocket19)
pocket19.Profile = sketch20
pocket19.Length = 10
pocket19.Reversed = True

doc.recompute()
